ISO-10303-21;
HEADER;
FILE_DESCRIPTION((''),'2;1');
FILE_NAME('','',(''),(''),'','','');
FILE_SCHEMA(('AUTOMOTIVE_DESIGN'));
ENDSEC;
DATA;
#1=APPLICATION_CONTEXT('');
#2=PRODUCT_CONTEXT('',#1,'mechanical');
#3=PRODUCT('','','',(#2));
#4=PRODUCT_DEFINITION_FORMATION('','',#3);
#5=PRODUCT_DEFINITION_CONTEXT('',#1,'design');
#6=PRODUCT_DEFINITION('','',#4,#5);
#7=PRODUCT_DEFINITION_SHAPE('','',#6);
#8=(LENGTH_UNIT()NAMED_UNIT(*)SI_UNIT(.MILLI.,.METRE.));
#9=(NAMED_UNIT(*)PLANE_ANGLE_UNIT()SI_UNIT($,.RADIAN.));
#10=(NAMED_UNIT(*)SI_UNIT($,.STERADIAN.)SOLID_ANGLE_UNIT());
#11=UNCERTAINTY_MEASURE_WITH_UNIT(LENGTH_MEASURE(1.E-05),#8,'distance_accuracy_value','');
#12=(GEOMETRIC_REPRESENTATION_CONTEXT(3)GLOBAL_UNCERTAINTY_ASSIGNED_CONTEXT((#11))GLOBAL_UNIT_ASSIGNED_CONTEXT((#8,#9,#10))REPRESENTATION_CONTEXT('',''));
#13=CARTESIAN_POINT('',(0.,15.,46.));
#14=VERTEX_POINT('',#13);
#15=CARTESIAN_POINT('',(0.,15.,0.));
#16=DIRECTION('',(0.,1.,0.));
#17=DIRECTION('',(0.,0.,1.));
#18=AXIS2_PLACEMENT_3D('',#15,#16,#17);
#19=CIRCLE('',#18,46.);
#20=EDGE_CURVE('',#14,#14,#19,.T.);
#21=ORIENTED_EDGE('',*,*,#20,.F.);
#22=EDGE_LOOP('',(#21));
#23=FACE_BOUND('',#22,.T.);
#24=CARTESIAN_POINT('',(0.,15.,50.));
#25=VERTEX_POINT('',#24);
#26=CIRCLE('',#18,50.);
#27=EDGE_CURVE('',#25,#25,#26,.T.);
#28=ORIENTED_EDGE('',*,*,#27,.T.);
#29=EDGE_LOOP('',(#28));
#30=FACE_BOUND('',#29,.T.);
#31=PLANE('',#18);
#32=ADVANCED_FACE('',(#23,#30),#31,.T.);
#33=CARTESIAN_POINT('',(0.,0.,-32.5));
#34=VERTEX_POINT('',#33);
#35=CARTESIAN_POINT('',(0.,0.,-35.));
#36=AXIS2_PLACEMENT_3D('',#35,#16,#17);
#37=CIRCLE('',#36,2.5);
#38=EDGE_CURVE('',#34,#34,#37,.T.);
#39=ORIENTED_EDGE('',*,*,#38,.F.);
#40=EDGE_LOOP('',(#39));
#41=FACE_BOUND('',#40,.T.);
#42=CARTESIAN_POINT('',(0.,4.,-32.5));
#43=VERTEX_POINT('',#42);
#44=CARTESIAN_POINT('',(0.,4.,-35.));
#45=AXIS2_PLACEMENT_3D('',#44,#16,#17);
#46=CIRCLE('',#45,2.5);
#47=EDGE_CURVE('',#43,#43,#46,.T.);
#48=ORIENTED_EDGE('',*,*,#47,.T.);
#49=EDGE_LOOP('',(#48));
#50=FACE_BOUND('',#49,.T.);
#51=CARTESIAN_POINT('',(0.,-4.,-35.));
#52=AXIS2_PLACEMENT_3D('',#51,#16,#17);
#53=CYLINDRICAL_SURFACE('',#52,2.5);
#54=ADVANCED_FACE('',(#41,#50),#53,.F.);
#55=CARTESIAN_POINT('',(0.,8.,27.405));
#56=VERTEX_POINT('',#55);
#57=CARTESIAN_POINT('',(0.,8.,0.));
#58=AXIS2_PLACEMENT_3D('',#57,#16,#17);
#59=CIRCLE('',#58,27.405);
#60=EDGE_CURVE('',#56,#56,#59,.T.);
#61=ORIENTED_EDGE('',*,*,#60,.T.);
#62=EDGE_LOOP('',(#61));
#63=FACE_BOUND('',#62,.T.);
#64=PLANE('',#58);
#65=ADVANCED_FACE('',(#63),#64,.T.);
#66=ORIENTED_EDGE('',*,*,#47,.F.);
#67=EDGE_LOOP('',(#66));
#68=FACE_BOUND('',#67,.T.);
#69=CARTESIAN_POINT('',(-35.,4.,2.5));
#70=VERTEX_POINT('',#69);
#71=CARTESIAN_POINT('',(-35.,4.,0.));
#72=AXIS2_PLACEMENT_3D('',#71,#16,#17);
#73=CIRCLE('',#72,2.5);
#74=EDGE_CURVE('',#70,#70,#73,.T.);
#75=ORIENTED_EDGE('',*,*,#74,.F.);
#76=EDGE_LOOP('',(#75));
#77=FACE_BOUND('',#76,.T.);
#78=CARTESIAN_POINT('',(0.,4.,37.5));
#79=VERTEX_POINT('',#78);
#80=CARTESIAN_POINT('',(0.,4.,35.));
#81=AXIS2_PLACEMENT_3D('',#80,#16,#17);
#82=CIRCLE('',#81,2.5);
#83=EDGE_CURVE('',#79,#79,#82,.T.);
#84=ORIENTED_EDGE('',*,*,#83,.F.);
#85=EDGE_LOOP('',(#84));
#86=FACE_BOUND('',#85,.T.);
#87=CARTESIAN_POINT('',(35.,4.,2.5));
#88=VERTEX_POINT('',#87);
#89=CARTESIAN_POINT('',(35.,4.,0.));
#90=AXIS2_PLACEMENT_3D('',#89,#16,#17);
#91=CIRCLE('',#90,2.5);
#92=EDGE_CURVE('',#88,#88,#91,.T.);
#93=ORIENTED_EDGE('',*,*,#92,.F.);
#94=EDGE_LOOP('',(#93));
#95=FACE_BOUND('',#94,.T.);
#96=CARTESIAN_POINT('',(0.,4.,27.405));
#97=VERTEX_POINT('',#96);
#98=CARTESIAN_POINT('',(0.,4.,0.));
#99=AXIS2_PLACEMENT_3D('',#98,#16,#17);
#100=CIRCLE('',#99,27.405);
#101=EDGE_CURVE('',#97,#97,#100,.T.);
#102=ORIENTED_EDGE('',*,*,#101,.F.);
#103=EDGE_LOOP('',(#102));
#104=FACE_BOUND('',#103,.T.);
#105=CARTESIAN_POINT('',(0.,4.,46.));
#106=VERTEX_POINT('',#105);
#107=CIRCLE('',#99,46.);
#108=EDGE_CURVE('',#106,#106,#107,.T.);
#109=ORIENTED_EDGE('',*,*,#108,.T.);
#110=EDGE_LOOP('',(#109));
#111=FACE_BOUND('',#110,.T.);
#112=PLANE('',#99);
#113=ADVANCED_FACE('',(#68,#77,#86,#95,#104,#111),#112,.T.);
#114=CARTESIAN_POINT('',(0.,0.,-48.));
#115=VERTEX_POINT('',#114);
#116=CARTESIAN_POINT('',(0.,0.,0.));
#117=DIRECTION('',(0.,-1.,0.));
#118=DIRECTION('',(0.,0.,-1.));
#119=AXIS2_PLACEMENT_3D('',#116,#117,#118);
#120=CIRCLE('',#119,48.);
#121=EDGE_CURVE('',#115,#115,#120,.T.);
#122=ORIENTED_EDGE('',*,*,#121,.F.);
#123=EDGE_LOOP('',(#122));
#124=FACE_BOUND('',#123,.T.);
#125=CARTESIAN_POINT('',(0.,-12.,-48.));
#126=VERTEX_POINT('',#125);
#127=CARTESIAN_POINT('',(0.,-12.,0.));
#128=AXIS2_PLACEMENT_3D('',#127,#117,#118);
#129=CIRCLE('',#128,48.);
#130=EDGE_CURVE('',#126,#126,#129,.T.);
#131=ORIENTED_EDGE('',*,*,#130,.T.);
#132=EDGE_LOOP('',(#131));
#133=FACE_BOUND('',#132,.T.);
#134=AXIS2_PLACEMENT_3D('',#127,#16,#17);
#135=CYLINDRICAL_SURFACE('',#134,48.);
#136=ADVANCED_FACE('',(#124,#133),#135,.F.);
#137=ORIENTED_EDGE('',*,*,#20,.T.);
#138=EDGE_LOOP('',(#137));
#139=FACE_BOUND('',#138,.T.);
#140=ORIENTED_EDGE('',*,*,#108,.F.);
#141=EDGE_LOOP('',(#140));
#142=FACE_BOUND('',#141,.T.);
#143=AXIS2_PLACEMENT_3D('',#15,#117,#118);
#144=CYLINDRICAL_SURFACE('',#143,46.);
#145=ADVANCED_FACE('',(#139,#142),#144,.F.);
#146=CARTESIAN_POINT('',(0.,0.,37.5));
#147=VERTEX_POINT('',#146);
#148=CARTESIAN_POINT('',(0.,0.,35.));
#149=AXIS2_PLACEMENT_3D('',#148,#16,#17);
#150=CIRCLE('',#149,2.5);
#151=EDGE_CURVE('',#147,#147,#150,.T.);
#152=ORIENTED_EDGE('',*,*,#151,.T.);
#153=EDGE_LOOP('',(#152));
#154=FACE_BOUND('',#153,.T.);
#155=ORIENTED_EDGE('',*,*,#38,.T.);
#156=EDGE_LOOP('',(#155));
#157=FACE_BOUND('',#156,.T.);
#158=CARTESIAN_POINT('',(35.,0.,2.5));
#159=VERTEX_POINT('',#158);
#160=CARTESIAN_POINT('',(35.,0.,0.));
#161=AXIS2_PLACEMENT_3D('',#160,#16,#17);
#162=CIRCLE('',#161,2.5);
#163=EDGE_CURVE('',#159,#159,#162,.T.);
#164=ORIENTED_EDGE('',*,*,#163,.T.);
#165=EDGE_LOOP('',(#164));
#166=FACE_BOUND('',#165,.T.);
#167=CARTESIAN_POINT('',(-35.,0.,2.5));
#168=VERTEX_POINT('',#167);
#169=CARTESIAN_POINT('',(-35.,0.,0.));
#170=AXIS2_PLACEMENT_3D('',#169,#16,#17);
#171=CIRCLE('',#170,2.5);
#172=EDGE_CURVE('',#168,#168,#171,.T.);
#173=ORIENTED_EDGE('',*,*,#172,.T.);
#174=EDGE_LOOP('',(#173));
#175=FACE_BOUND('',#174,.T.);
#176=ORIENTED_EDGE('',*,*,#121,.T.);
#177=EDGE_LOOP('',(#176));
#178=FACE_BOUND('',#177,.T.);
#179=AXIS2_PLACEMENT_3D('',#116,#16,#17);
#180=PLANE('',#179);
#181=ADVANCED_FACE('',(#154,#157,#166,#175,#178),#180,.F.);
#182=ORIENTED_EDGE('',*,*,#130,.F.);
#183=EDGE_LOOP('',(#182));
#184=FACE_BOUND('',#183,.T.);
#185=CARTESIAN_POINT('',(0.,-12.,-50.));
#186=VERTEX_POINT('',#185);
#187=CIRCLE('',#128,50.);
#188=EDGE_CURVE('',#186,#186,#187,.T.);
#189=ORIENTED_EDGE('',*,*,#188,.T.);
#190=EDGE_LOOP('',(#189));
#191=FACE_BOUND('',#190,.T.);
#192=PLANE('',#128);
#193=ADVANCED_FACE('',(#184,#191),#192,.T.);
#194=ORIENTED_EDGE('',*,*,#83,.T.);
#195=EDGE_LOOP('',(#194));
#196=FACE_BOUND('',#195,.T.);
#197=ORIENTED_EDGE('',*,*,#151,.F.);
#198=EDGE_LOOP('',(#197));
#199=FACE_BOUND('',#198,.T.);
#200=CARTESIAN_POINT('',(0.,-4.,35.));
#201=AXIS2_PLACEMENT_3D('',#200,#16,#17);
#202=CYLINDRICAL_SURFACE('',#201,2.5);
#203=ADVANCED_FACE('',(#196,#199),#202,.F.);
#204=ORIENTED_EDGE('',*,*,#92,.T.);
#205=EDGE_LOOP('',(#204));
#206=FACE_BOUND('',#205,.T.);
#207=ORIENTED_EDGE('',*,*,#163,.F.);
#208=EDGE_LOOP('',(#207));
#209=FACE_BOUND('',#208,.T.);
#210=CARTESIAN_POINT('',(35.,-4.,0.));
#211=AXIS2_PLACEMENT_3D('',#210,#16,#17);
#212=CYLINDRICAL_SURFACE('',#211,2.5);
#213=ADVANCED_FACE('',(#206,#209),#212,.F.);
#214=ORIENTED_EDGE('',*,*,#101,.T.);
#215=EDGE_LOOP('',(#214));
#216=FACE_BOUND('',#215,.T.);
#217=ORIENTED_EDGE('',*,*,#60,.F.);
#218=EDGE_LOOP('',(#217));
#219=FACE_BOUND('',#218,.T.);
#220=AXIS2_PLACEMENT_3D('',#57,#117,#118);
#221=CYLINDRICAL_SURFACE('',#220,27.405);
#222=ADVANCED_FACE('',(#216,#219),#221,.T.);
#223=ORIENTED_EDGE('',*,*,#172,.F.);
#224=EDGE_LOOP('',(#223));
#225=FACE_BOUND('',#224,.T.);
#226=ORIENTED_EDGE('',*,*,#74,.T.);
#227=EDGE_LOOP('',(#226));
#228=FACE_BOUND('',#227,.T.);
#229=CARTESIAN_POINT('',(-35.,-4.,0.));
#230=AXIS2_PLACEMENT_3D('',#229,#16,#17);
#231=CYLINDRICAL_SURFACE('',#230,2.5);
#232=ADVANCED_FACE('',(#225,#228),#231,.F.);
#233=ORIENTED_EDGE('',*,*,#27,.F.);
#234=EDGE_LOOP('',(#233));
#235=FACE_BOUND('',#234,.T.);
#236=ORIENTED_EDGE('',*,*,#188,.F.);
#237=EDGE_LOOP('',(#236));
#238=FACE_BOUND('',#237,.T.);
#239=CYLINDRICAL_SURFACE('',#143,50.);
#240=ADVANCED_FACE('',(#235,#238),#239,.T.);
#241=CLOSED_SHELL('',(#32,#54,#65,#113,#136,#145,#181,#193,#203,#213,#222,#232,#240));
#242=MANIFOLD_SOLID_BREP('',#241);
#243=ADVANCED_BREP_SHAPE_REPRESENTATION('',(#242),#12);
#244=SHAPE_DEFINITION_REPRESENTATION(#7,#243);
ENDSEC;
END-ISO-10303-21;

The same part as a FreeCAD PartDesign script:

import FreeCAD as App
import Part
import Sketcher
from FreeCAD import Vector
Q = App.Units.Quantity


def faces_at(feature, points):
    """Names of the faces that lie closest to the given points."""
    faces = feature.Shape.Faces
    near = lambda p: min(range(len(faces)), key=lambda i: faces[i].distToShape(Part.Vertex(*p))[0])
    return sorted({f"Face{near(p) + 1}" for p in points})

doc = App.newDocument("Part")
params = doc.addObject("Spreadsheet::Sheet", "Params")
for row, (alias, value) in enumerate([
    ("sketch1_diameter", "100 mm"),
    ("pad1_length", "15 mm"),
    ("thickness_wall", "4 mm"),
    ("sketch2_diameter", "54.81 mm"),
    ("pad2_length", "4 mm"),
    ("sketch3_diameter", "5 mm"),
    ("pocket1_length", "12 mm"),
    ("sketch4_diameter", "100 mm"),
    ("sketch4_diameter2", "96 mm"),
    ("pad3_length", "12 mm"),
], start=1):
    params.set(f"A{row}", alias)
    params.set(f"B{row}", "=" + value)
    params.setAlias(f"B{row}", alias)

body = doc.addObject("PartDesign::Body", "Body")

sketch1 = body.newObject("Sketcher::SketchObject", "Sketch")
sketch1.AttachmentSupport = (doc.getObject("XZ_Plane"), [""])
sketch1.MapMode = "FlatFace"
sketch1.addGeometry(Part.Circle(Vector(0, 0, 0), Vector(0, 0, 1), 50), False)
sketch1.addConstraint(Sketcher.Constraint("Coincident", 0, 3, -1, 1))
sketch1.addConstraint(Sketcher.Constraint("Diameter", 0, Q("100 mm")))
sketch1.setExpression("Constraints[1]", "Params.sketch1_diameter")
pad1 = body.newObject("PartDesign::Pad", "Pad")
pad1.Profile = sketch1
pad1.setExpression("Length", "Params.pad1_length")
pad1.Reversed = True
doc.recompute()

thickness = body.newObject("PartDesign::Thickness", "Thickness")
thickness.Base = (pad1, faces_at(pad1, [(0, 15, 0)]))
thickness.setExpression("Value", "Params.thickness_wall")
thickness.Reversed = True
thickness.Join = "Intersection"

sketch2 = body.newObject("Sketcher::SketchObject", "Sketch001")
sketch2.AttachmentSupport = (doc.getObject("XZ_Plane"), [""])
sketch2.MapMode = "FlatFace"
sketch2.AttachmentOffset = App.Placement(Vector(0, 0, -4), App.Rotation())
sketch2.addGeometry(Part.Circle(Vector(0, 0, 0), Vector(0, 0, 1), 27), False)
sketch2.addConstraint(Sketcher.Constraint("Coincident", 0, 3, -1, 1))
sketch2.addConstraint(Sketcher.Constraint("Diameter", 0, Q("54.81 mm")))
sketch2.setExpression("Constraints[1]", "Params.sketch2_diameter")
pad2 = body.newObject("PartDesign::Pad", "Pad001")
pad2.Profile = sketch2
pad2.setExpression("Length", "Params.pad2_length")
pad2.Reversed = True

sketch3 = body.newObject("Sketcher::SketchObject", "Sketch002")
sketch3.AttachmentSupport = (doc.getObject("XZ_Plane"), [""])
sketch3.MapMode = "FlatFace"
sketch3.AttachmentOffset = App.Placement(Vector(0, 0, -8), App.Rotation())
sketch3.addGeometry(Part.Circle(Vector(35, 0, 0), Vector(0, 0, 1), 2.5), False)
sketch3.addGeometry(Part.Circle(Vector(0, -35, 0), Vector(0, 0, 1), 2.5), False)
sketch3.addGeometry(Part.Circle(Vector(-35, 0, 0), Vector(0, 0, 1), 2.5), False)
sketch3.addGeometry(Part.Circle(Vector(0, 35, 0), Vector(0, 0, 1), 2.5), False)
sketch3.addConstraint(Sketcher.Constraint("Equal", 0, 1))
sketch3.addConstraint(Sketcher.Constraint("Equal", 1, 2))
sketch3.addConstraint(Sketcher.Constraint("Equal", 2, 3))
sketch3.addConstraint(Sketcher.Constraint("Symmetric", 0, 3, 2, 3, -1, 1))
sketch3.addConstraint(Sketcher.Constraint("Symmetric", 1, 3, 3, 3, -1, 1))
sketch3.addConstraint(Sketcher.Constraint("PointOnObject", 0, 3, -1))
sketch3.addConstraint(Sketcher.Constraint("PointOnObject", 1, 3, -2))
sketch3.addConstraint(Sketcher.Constraint("Diameter", 0, Q("5 mm")))
sketch3.addConstraint(Sketcher.Constraint("DistanceX", -1, 1, 0, 3, Q("35 mm")))
sketch3.addConstraint(Sketcher.Constraint("DistanceY", 1, 3, -1, 1, Q("35 mm")))
sketch3.setExpression("Constraints[7]", "Params.sketch3_diameter")
pocket1 = body.newObject("PartDesign::Pocket", "Pocket")
pocket1.Profile = sketch3
pocket1.setExpression("Length", "Params.pocket1_length")
pocket1.Reversed = True

sketch4 = body.newObject("Sketcher::SketchObject", "Sketch003")
sketch4.AttachmentSupport = (doc.getObject("XZ_Plane"), [""])
sketch4.MapMode = "FlatFace"
sketch4.AttachmentOffset = App.Placement(Vector(0, 0, 12), App.Rotation())
sketch4.addGeometry(Part.Circle(Vector(0, 0, 0), Vector(0, 0, 1), 50), False)
sketch4.addGeometry(Part.Circle(Vector(0, 0, 0), Vector(0, 0, 1), 48), False)
sketch4.addConstraint(Sketcher.Constraint("Coincident", 0, 3, -1, 1))
sketch4.addConstraint(Sketcher.Constraint("Coincident", 1, 3, -1, 1))
sketch4.addConstraint(Sketcher.Constraint("Diameter", 0, Q("100 mm")))
sketch4.addConstraint(Sketcher.Constraint("Diameter", 1, Q("96 mm")))
sketch4.setExpression("Constraints[2]", "Params.sketch4_diameter")
sketch4.setExpression("Constraints[3]", "Params.sketch4_diameter2")
pad3 = body.newObject("PartDesign::Pad", "Pad002")
pad3.Profile = sketch4
pad3.setExpression("Length", "Params.pad3_length")
pad3.Reversed = True

doc.recompute()
